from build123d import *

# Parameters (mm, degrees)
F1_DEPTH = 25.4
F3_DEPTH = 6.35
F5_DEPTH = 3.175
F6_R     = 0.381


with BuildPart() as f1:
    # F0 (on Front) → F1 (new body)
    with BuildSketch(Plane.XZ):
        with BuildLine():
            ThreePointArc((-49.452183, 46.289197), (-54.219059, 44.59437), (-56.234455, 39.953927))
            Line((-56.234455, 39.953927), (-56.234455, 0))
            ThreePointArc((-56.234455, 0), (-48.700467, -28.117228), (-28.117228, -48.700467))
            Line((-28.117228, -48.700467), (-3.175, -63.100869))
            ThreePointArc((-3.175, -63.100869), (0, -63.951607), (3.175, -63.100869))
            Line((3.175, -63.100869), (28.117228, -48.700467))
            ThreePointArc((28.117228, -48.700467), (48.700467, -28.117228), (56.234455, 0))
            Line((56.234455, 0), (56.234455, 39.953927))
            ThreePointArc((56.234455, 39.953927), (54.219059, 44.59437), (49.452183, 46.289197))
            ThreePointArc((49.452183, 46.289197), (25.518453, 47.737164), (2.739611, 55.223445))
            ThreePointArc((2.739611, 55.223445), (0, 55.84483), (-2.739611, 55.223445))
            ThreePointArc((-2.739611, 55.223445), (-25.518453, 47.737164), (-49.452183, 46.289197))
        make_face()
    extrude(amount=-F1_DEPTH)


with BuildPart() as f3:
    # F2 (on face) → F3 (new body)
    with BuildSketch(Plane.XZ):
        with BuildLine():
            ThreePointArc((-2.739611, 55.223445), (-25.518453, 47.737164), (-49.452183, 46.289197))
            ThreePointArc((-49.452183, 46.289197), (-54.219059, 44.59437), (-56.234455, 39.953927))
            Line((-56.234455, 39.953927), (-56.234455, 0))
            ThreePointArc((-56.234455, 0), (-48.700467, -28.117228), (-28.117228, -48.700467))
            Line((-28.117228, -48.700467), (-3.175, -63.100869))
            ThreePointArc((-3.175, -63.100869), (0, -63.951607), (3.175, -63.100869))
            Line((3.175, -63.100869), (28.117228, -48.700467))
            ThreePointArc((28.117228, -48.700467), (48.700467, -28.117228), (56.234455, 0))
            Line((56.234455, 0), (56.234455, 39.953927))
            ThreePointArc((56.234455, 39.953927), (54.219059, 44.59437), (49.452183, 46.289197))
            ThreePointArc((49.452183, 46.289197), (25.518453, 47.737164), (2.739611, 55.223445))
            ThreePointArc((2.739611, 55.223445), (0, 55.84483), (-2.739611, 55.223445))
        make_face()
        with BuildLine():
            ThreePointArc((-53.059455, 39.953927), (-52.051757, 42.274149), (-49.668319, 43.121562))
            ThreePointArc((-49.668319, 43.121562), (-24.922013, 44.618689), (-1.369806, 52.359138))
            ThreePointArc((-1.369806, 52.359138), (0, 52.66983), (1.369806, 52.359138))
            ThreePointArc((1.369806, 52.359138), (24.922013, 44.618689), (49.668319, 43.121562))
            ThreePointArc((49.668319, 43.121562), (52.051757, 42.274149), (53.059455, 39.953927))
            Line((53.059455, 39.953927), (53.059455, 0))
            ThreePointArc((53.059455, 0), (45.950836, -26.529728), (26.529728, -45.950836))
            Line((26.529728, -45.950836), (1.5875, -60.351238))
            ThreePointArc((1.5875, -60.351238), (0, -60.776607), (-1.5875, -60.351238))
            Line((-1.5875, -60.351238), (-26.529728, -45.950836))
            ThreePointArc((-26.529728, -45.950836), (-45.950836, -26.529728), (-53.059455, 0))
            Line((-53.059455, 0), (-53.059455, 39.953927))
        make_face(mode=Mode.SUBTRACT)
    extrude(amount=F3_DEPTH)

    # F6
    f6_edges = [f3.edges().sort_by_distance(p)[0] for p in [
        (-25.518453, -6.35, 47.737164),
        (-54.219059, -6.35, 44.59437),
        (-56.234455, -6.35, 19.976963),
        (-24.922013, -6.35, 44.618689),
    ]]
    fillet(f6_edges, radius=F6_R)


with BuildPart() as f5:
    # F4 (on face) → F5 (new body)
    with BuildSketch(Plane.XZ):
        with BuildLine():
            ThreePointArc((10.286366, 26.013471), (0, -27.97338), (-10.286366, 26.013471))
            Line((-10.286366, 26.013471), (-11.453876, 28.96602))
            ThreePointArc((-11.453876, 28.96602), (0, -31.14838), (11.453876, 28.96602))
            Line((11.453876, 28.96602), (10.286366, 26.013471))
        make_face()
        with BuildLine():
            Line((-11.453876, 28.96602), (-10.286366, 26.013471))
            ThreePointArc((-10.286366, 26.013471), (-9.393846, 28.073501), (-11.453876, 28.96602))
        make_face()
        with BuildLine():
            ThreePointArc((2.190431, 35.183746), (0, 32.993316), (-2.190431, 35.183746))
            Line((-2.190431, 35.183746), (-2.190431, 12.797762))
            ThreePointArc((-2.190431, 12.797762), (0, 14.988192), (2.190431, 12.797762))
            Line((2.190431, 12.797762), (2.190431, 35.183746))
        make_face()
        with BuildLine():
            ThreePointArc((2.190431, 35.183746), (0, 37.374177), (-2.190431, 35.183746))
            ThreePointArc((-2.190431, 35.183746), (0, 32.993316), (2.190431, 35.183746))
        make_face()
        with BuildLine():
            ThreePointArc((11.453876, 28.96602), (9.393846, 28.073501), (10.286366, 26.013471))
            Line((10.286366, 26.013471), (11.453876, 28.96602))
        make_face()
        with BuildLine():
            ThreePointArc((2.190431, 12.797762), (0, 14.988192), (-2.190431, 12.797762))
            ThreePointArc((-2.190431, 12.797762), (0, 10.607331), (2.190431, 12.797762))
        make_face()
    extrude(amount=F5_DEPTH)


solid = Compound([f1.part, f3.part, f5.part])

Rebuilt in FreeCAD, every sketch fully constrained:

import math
import FreeCAD as App
import Part
import Sketcher

V = App.Vector
Q = App.Units.Quantity


def edges_at(feature, points):
    """Names of the edges that pass closest to the given points."""
    edges = feature.Shape.Edges
    near = lambda p: min(range(len(edges)), key=lambda i: edges[i].distToShape(Part.Vertex(*p))[0])
    return sorted({f"Edge{near(p) + 1}" for p in points})

doc = App.newDocument("Part")
body = doc.addObject("PartDesign::Body", "Body")

# Sketch on XZ plane
sketch1 = doc.addObject("Sketcher::SketchObject", "Sketch")
body.addObject(sketch1)
sketch1.AttachmentSupport = (doc.XZ_Plane, [""])
sketch1.MapMode = "FlatFace"
sketch1.addGeometry([
    Part.ArcOfCircle(Part.Circle(V(-49.884455, 39.953927, 0), V(0, 0, 1), 6.35), math.radians(86.09661), math.radians(180.000003)),  # 0
    Part.LineSegment(V(-56.234455, 39.953927, 0), V(-56.234455, 0, 0)),  # 1
    Part.ArcOfCircle(Part.Circle(V(-0.000002, -0.000002, 0), V(0, 0, 1), 56.234453), math.radians(179.999998), math.radians(240)),  # 2
    Part.LineSegment(V(-28.117228, -48.700467, 0), V(-3.175, -63.100869, 0)),  # 3
    Part.ArcOfCircle(Part.Circle(V(0, -57.601603, 0), V(0, 0, 1), 6.350004), math.radians(-119.999977), math.radians(-60.000023)),  # 4
    Part.LineSegment(V(3.175, -63.100869, 0), V(28.117228, -48.700467, 0)),  # 5
    Part.ArcOfCircle(Part.Circle(V(0.000002, -0.000002, 0), V(0, 0, 1), 56.234453), math.radians(-60), math.radians(0.000002)),  # 6
    Part.LineSegment(V(56.234455, 0, 0), V(56.234455, 39.953927, 0)),  # 7
    Part.ArcOfCircle(Part.Circle(V(49.884455, 39.953927, 0), V(0, 0, 1), 6.35), math.radians(-0.000003), math.radians(93.90339)),  # 8
    Part.ArcOfCircle(Part.Circle(V(43.086075, 139.589195, 0), V(0, 0, 1), 93.516934), math.radians(-115.558654), math.radians(-86.096606)),  # 9
    Part.ArcOfCircle(Part.Circle(V(0, 49.494831, 0), V(0, 0, 1), 6.349999), math.radians(64.441343), math.radians(115.558657)),  # 10
    Part.ArcOfCircle(Part.Circle(V(-43.086075, 139.589195, 0), V(0, 0, 1), 93.516934), math.radians(-93.903394), math.radians(-64.441346)),  # 11
], False)
sketch1.addConstraint([
    Sketcher.Constraint("Coincident", 0, 2, 1, 1),
    Sketcher.Constraint("Coincident", 1, 2, 2, 1),
    Sketcher.Constraint("Coincident", 2, 2, 3, 1),
    Sketcher.Constraint("Coincident", 3, 2, 4, 1),
    Sketcher.Constraint("Coincident", 4, 2, 5, 1),
    Sketcher.Constraint("Coincident", 5, 2, 6, 1),
    Sketcher.Constraint("Coincident", 6, 2, 7, 1),
    Sketcher.Constraint("Coincident", 7, 2, 8, 1),
    Sketcher.Constraint("Coincident", 8, 2, 9, 2),
    Sketcher.Constraint("Coincident", 9, 1, 10, 1),
    Sketcher.Constraint("Coincident", 10, 2, 11, 2),
    Sketcher.Constraint("Coincident", 11, 1, 0, 1),
    Sketcher.Constraint("Vertical", 1),
    Sketcher.Constraint("Vertical", 7),
    Sketcher.Constraint("Coincident", 2, 3, -1, 1),
    Sketcher.Constraint("Coincident", 6, 3, -1, 1),
    Sketcher.Constraint("PointOnObject", 4, 3, -2),
    Sketcher.Constraint("PointOnObject", 10, 3, -2),
    Sketcher.Constraint("PointOnObject", 1, 2, -1),
    Sketcher.Constraint("PointOnObject", 6, 2, -1),
    Sketcher.Constraint("Radius", 0, Q("0.25 in")),
    Sketcher.Constraint("Radius", 4, Q("0.2500002 in")),
    Sketcher.Constraint("Radius", 8, Q("0.25 in")),
    Sketcher.Constraint("Radius", 10, Q("0.2499999 in")),
    Sketcher.Constraint("DistanceX", 3, 2, 4, 2, Q("0.25 in")),
    Sketcher.Constraint("DistanceX", 3, 2, -1, 1, Q("0.125 in")),
    Sketcher.Constraint("Radius", 2, 56.234453),
    Sketcher.Constraint("Radius", 6, 56.234453),
    Sketcher.Constraint("Radius", 9, 93.516934),
    Sketcher.Constraint("Radius", 11, 93.516934),
    Sketcher.Constraint("DistanceY", 4, 3, 2, 3, 57.601601),
    Sketcher.Constraint("DistanceY", 4, 2, 5, 2, 14.400402),
    Sketcher.Constraint("DistanceY", 6, 3, 8, 2, 46.289199),
    Sketcher.Constraint("DistanceY", 1, 2, 1, 1, 39.953927),
    Sketcher.Constraint("DistanceY", 7, 1, 7, 2, 39.953927),
    Sketcher.Constraint("DistanceY", -1, 1, 10, 3, 49.494831),
    Sketcher.Constraint("DistanceX", -1, 1, 9, 1, 2.739611),
    Sketcher.Constraint("DistanceX", 10, 2, -1, 1, 2.739611),
    Sketcher.Constraint("DistanceY", 2, 3, 0, 3, 39.953929),
    Sketcher.Constraint("DistanceY", 6, 3, 8, 3, 39.953929),
    Sketcher.Constraint("DistanceX", 2, 2, 6, 3, 28.11723),
    Sketcher.Constraint("DistanceX", 0, 3, 11, 1, 0.432272),
])
pad1 = doc.addObject("PartDesign::Pad", "Pad")
body.addObject(pad1)
pad1.Profile = sketch1
pad1.Length = Q("1 in")
pad1.Reversed = True
body2 = doc.addObject("PartDesign::Body", "Body001")

# Sketch on XZ plane
sketch2 = doc.addObject("Sketcher::SketchObject", "Sketch001")
body2.addObject(sketch2)
sketch2.AttachmentSupport = (doc.getObject("XZ_Plane001"), [""])
sketch2.MapMode = "FlatFace"
sketch2.addGeometry([
    Part.ArcOfCircle(Part.Circle(V(-43.1, 139.6, 0), V(0, 0, 1), 93.5), math.radians(-94), math.radians(-64)),  # 0
    Part.ArcOfCircle(Part.Circle(V(-49.9, 40, 0), V(0, 0, 1), 6.4), math.radians(86), math.radians(180)),  # 1
    Part.LineSegment(V(-56.2, 40, 0), V(-56.2, 0, 0)),  # 2
    Part.ArcOfCircle(Part.Circle(V(0, 0, 0), V(0, 0, 1), 56.2), math.radians(180), math.radians(240)),  # 3
    Part.LineSegment(V(-28.1, -48.7, 0), V(-3.2, -63.1, 0)),  # 4
    Part.ArcOfCircle(Part.Circle(V(0, -57.6, 0), V(0, 0, 1), 6.4), math.radians(-120), math.radians(-60)),  # 5
    Part.LineSegment(V(3.2, -63.1, 0), V(28.1, -48.7, 0)),  # 6
    Part.ArcOfCircle(Part.Circle(V(0, 0, 0), V(0, 0, 1), 56.2), math.radians(-60), math.radians(0)),  # 7
    Part.LineSegment(V(56.2, 0, 0), V(56.2, 40, 0)),  # 8
    Part.ArcOfCircle(Part.Circle(V(49.9, 40, 0), V(0, 0, 1), 6.4), math.radians(0), math.radians(94)),  # 9
    Part.ArcOfCircle(Part.Circle(V(43.1, 139.6, 0), V(0, 0, 1), 93.5), math.radians(-116), math.radians(-86)),  # 10
    Part.ArcOfCircle(Part.Circle(V(0, 49.5, 0), V(0, 0, 1), 6.3), math.radians(64), math.radians(116)),  # 11
    Part.LineSegment(V(-53.1, 0, 0), V(-53.1, 40, 0)),  # 12
    Part.ArcOfCircle(Part.Circle(V(-49.9, 40, 0), V(0, 0, 1), 3.2), math.radians(86), math.radians(180)),  # 13
    Part.ArcOfCircle(Part.Circle(V(-43.1, 139.6, 0), V(0, 0, 1), 96.7), math.radians(-94), math.radians(-64)),  # 14
    Part.ArcOfCircle(Part.Circle(V(0, 49.5, 0), V(0, 0, 1), 3.2), math.radians(64), math.radians(116)),  # 15
    Part.ArcOfCircle(Part.Circle(V(43.1, 139.6, 0), V(0, 0, 1), 96.7), math.radians(-116), math.radians(-86)),  # 16
    Part.ArcOfCircle(Part.Circle(V(49.9, 40, 0), V(0, 0, 1), 3.2), math.radians(0), math.radians(94)),  # 17
    Part.LineSegment(V(53.1, 40, 0), V(53.1, 0, 0)),  # 18
    Part.ArcOfCircle(Part.Circle(V(0, 0, 0), V(0, 0, 1), 53.1), math.radians(-60), math.radians(0)),  # 19
    Part.LineSegment(V(26.5, -46, 0), V(1.6, -60.4, 0)),  # 20
    Part.ArcOfCircle(Part.Circle(V(0, -57.6, 0), V(0, 0, 1), 3.2), math.radians(-120), math.radians(-60)),  # 21
    Part.LineSegment(V(-1.6, -60.4, 0), V(-26.5, -46, 0)),  # 22
    Part.ArcOfCircle(Part.Circle(V(0, 0, 0), V(0, 0, 1), 53.1), math.radians(180), math.radians(240)),  # 23
], False)
sketch2.addConstraint([
    Sketcher.Constraint("Tangent", 0, 1, 1, 1),
    Sketcher.Constraint("Tangent", 1, 2, 2, 1),
    Sketcher.Constraint("Tangent", 2, 2, 3, 1),
    Sketcher.Constraint("Tangent", 3, 2, 4, 1),
    Sketcher.Constraint("Tangent", 4, 2, 5, 1),
    Sketcher.Constraint("Tangent", 5, 2, 6, 1),
    Sketcher.Constraint("Tangent", 6, 2, 7, 1),
    Sketcher.Constraint("Tangent", 7, 2, 8, 1),
    Sketcher.Constraint("Tangent", 8, 2, 9, 1),
    Sketcher.Constraint("Tangent", 9, 2, 10, 2),
    Sketcher.Constraint("Tangent", 10, 1, 11, 1),
    Sketcher.Constraint("Tangent", 11, 2, 0, 2),
    Sketcher.Constraint("Tangent", 12, 2, 13, 2),
    Sketcher.Constraint("Tangent", 13, 1, 14, 1),
    Sketcher.Constraint("Tangent", 14, 2, 15, 2),
    Sketcher.Constraint("Tangent", 15, 1, 16, 1),
    Sketcher.Constraint("Tangent", 16, 2, 17, 2),
    Sketcher.Constraint("Tangent", 17, 1, 18, 1),
    Sketcher.Constraint("Tangent", 18, 2, 19, 2),
    Sketcher.Constraint("Tangent", 19, 1, 20, 1),
    Sketcher.Constraint("Tangent", 20, 2, 21, 2),
    Sketcher.Constraint("Tangent", 21, 1, 22, 1),
    Sketcher.Constraint("Tangent", 22, 2, 23, 2),
    Sketcher.Constraint("Tangent", 23, 1, 12, 1),
    Sketcher.Constraint("Vertical", 2),
    Sketcher.Constraint("Vertical", 8),
    Sketcher.Constraint("Vertical", 12),
    Sketcher.Constraint("Vertical", 18),
    Sketcher.Constraint("Coincident", 3, 3, -1, 1),
    Sketcher.Constraint("Coincident", 7, 3, -1, 1),
    Sketcher.Constraint("Coincident", 19, 3, -1, 1),
    Sketcher.Constraint("Coincident", 23, 3, -1, 1),
    Sketcher.Constraint("Coincident", 13, 3, 1, 3),
    Sketcher.Constraint("Coincident", 15, 3, 11, 3),
    Sketcher.Constraint("Coincident", 17, 3, 9, 3),
    Sketcher.Constraint("Coincident", 21, 3, 5, 3),
    Sketcher.Constraint("Equal", 3, 7),
    Sketcher.Constraint("Equal", 1, 9),
    Sketcher.Constraint("Equal", 0, 10),
    Sketcher.Constraint("Equal", 9, 11),
    Sketcher.Constraint("Equal", 14, 16),
    Sketcher.Constraint("Equal", 13, 17),
    Sketcher.Constraint("Symmetric", 0, 3, 10, 3, -2),
    Sketcher.Constraint("PointOnObject", 5, 3, -2),
    Sketcher.Constraint("Parallel", 6, 20),
    Sketcher.Constraint("Vertical", 0, 3, 14, 3),
    Sketcher.Constraint("Radius", 1, Q("0.25 in")),
    Sketcher.Constraint("Radius", 5, Q("0.2500002 in")),
    Sketcher.Constraint("Angle", 4, Q("-30 deg")),
    Sketcher.Constraint("Radius", 13, Q("0.125 in")),
    Sketcher.Constraint("Radius", 0, 93.516934),
    Sketcher.Constraint("Radius", 3, 56.234453),
    Sketcher.Constraint("Radius", 14, 96.691917),
    Sketcher.Constraint("DistanceY", 3, 3, 0, 1, 46.289199),
    Sketcher.Constraint("DistanceY", -1, 1, 11, 3, 49.494831),
])
pad2 = doc.addObject("PartDesign::Pad", "Pad001")
body2.addObject(pad2)
pad2.Profile = sketch2
pad2.Length = Q("0.25 in")
doc.recompute()

fillet = doc.addObject("PartDesign::Fillet", "Fillet")
body2.addObject(fillet)
fillet.Base = (pad2, edges_at(pad2, [
    (-25.518, -6.35, 47.737),
    (-54.219, -6.35, 44.594),
    (-56.234, -6.35, 19.977),
    (-24.922, -6.35, 44.619),
]))
fillet.Radius = Q("0.015 in")
body3 = doc.addObject("PartDesign::Body", "Body002")
body3.AllowCompound = True

# Sketch on XZ plane
sketch3 = doc.addObject("Sketcher::SketchObject", "Sketch002")
body3.addObject(sketch3)
sketch3.AttachmentSupport = (doc.getObject("XZ_Plane002"), [""])
sketch3.MapMode = "FlatFace"
sketch3.addGeometry([
    Part.ArcOfCircle(Part.Circle(V(0, 0, 0), V(0, 0, 1), 28), math.radians(112), math.radians(428)),  # 0
    Part.ArcOfCircle(Part.Circle(V(-10.9, 27.5, 0), V(0, 0, 1), 1.6), math.radians(-68), math.radians(112)),  # 1
    Part.ArcOfCircle(Part.Circle(V(0, 0, 0), V(0, 0, 1), 31.1), math.radians(112), math.radians(428)),  # 2
    Part.ArcOfCircle(Part.Circle(V(10.9, 27.5, 0), V(0, 0, 1), 1.6), math.radians(68), math.radians(248)),  # 3
    Part.LineSegment(V(-2.2, 35.2, 0), V(-2.2, 12.8, 0)),  # 4
    Part.ArcOfCircle(Part.Circle(V(0, 12.8, 0), V(0, 0, 1), 2.2), math.radians(180), math.radians(360)),  # 5
    Part.LineSegment(V(2.2, 12.8, 0), V(2.2, 35.2, 0)),  # 6
    Part.ArcOfCircle(Part.Circle(V(0, 35.2, 0), V(0, 0, 1), 2.2), math.radians(0), math.radians(180)),  # 7
], False)
sketch3.addConstraint([
    Sketcher.Constraint("Tangent", 0, 1, 1, 1),
    Sketcher.Constraint("Tangent", 1, 2, 2, 1),
    Sketcher.Constraint("Tangent", 2, 2, 3, 1),
    Sketcher.Constraint("Tangent", 3, 2, 0, 2),
    Sketcher.Constraint("Tangent", 4, 2, 5, 1),
    Sketcher.Constraint("Tangent", 5, 2, 6, 1),
    Sketcher.Constraint("Tangent", 6, 2, 7, 1),
    Sketcher.Constraint("Tangent", 7, 2, 4, 1),
    Sketcher.Constraint("Vertical", 4),
    Sketcher.Constraint("Vertical", 6),
    Sketcher.Constraint("Coincident", 0, 3, -1, 1),
    Sketcher.Constraint("Coincident", 2, 3, -1, 1),
    Sketcher.Constraint("PointOnObject", 5, 3, -2),
    Sketcher.Constraint("Horizontal", 1, 3, 3, 3),
    Sketcher.Constraint("Radius", 1, Q("0.0625 in")),
    Sketcher.Constraint("Radius", 0, 27.97338),
    Sketcher.Constraint("Radius", 5, 2.190431),
    Sketcher.Constraint("DistanceY", 1, 3, 7, 3, 7.694),
    Sketcher.Constraint("DistanceY", 4, 2, 4, 1, 22.385984),
    Sketcher.Constraint("DistanceX", 1, 3, -1, 1, 10.87012),
])
pad3 = doc.addObject("PartDesign::Pad", "Pad002")
body3.addObject(pad3)
pad3.Profile = sketch3
pad3.Length = Q("0.125 in")

doc.recompute()
